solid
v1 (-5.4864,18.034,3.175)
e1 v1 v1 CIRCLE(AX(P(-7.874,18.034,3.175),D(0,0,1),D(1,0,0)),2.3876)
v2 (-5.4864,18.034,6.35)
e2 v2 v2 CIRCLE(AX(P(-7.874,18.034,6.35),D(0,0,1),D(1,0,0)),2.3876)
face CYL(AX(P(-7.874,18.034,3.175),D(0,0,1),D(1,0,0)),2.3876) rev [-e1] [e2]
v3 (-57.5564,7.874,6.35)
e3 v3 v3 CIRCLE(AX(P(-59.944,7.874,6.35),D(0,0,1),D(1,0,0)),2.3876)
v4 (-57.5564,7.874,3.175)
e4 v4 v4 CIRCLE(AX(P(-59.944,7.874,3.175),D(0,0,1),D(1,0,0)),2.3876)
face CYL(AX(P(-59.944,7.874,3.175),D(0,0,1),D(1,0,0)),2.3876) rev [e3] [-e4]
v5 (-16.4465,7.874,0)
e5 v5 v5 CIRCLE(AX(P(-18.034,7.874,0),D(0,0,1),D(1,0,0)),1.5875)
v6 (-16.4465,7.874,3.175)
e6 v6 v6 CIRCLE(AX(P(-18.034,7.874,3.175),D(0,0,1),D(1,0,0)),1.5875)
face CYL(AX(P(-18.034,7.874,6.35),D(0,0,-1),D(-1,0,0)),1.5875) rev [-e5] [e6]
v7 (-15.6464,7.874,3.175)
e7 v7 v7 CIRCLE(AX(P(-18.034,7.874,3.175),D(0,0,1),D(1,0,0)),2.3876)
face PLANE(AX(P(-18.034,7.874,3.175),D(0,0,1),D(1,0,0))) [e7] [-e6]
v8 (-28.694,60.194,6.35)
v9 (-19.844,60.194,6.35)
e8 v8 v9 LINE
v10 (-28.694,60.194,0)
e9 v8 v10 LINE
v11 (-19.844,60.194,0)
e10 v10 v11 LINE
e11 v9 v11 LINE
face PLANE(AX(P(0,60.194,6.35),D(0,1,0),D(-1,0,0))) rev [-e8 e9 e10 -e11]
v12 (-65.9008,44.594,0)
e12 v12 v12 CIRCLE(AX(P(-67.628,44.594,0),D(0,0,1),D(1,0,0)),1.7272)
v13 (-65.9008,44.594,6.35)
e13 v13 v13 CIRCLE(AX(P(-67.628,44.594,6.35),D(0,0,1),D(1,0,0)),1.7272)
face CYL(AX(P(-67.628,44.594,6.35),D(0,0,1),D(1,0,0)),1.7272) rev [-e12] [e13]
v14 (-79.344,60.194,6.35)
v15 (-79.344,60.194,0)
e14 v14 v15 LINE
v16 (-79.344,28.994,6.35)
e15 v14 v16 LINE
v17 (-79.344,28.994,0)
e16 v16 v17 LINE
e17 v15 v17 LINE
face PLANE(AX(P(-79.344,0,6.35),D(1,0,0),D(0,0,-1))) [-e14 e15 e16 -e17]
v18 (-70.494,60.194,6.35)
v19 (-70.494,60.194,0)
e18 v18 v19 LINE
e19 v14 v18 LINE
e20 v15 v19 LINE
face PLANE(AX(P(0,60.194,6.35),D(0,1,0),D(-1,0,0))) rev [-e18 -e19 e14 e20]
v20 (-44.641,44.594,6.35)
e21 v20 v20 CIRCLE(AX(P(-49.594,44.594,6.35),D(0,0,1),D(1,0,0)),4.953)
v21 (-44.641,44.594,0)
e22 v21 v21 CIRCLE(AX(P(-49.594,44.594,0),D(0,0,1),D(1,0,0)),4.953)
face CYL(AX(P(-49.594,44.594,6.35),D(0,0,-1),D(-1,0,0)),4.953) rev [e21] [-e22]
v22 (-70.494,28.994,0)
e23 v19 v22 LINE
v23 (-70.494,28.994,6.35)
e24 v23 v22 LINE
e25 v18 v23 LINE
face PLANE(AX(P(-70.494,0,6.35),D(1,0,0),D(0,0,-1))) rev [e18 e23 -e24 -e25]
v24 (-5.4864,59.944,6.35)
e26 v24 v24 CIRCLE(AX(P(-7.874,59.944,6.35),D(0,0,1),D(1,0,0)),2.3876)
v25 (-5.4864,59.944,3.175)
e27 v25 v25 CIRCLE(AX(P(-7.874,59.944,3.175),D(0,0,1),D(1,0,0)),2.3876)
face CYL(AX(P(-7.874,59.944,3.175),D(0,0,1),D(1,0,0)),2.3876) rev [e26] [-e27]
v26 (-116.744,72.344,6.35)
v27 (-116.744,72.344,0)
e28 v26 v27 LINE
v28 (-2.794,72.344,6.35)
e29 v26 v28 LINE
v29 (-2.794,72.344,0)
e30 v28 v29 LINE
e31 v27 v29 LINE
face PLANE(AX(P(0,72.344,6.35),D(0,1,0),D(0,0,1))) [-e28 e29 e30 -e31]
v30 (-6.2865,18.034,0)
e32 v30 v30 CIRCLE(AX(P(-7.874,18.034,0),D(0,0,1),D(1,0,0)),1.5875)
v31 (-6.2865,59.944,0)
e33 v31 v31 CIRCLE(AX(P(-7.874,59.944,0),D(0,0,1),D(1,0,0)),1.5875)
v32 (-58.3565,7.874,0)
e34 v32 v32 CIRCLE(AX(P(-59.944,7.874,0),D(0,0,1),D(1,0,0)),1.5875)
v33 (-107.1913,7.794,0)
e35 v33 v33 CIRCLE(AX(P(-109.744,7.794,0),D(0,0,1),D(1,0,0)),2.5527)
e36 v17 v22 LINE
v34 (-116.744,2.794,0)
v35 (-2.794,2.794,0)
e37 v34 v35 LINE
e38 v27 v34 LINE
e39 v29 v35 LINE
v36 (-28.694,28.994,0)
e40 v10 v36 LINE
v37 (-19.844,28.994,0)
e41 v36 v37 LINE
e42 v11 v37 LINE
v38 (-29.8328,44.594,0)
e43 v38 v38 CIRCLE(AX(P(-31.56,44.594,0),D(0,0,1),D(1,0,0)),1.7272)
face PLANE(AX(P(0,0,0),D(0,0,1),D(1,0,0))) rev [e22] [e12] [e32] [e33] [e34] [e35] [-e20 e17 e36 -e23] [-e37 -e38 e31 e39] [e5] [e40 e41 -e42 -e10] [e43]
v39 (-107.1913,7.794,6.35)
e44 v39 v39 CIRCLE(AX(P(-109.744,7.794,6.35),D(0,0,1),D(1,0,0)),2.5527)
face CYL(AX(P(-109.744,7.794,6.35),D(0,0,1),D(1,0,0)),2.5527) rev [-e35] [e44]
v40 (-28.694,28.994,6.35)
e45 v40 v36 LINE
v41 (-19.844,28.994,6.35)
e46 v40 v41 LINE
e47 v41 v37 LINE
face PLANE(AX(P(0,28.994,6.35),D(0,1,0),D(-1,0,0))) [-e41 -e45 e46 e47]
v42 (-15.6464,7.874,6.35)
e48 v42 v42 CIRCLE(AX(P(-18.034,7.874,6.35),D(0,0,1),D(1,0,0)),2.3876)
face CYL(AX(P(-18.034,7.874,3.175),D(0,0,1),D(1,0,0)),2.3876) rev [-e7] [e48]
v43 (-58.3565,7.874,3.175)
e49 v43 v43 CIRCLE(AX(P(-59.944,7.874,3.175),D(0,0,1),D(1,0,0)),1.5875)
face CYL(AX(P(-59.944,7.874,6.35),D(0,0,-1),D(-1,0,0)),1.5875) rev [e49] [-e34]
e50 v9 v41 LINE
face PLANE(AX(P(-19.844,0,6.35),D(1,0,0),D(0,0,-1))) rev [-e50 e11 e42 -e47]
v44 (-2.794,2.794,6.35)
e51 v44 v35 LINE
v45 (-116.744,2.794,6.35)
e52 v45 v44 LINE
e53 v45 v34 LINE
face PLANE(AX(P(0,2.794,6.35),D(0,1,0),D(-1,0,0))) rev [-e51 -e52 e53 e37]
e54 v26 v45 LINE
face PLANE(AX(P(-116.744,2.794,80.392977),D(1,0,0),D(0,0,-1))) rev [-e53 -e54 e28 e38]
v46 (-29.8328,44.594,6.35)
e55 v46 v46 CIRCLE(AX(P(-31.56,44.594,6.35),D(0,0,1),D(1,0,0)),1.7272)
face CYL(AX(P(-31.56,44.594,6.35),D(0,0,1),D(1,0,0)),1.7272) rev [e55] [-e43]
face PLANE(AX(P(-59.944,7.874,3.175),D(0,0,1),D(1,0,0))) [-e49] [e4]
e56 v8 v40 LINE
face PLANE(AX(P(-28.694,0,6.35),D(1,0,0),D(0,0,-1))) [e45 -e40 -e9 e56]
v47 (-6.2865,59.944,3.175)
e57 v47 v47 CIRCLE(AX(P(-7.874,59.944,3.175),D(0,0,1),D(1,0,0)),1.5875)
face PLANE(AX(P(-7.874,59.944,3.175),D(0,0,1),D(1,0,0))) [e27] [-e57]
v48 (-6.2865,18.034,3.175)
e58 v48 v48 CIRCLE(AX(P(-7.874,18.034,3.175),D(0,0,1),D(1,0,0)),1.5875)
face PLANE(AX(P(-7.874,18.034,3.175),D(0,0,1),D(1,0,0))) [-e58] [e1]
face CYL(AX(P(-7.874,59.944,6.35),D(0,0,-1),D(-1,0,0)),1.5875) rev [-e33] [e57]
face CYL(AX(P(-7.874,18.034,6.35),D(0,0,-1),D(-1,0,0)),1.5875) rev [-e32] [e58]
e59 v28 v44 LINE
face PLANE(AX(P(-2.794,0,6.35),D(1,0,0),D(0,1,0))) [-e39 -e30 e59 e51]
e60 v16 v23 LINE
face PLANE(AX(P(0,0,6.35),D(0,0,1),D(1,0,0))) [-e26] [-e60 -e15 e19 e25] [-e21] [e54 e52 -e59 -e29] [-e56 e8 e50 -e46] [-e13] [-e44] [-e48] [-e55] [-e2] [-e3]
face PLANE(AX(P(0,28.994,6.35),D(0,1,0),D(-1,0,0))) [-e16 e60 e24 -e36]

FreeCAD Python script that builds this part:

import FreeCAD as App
import Part
import Sketcher
from FreeCAD import Vector
Q = App.Units.Quantity


def add_polygon(sketch, points):
    """Adds a closed chain of lines whose ends are joined by coincident constraints."""
    first, n = sketch.GeometryCount, len(points)
    for a, b in zip(points, points[1:] + points[:1]):
        sketch.addGeometry(Part.LineSegment(App.Vector(*a, 0), App.Vector(*b, 0)), False)
    for i in range(n):
        sketch.addConstraint(Sketcher.Constraint("Coincident", first + i, 2, first + (i + 1) % n, 1))

doc = App.newDocument("Part")
body = doc.addObject("PartDesign::Body", "Body")

# Sketch on XY plane
sketch1 = body.newObject("Sketcher::SketchObject", "Sketch")
sketch1.AttachmentSupport = (doc.getObject("XY_Plane"), [""])
sketch1.MapMode = "FlatFace"
add_polygon(sketch1, [(-91.3, 72.3), (-91.3, 2.8), (-2.8, 2.8), (-2.8, 72.3)])  # lines 0-3
add_polygon(sketch1, [(-70.5, 29), (-79.3, 29), (-79.3, 60.2), (-70.5, 60.2)])  # lines 4-7
sketch1.addGeometry(Part.Circle(Vector(-49.6, 44.6, 0), Vector(0, 0, 1), 5), False)  # 8
add_polygon(sketch1, [(-19.8, 29), (-28.7, 29), (-28.7, 60.2), (-19.8, 60.2)])  # lines 9-12
sketch1.addGeometry(Part.Circle(Vector(-59.9, 7.9, 0), Vector(0, 0, 1), 1.6), False)  # 13
sketch1.addGeometry(Part.Circle(Vector(-18, 7.9, 0), Vector(0, 0, 1), 1.6), False)  # 14
sketch1.addGeometry(Part.Circle(Vector(-7.9, 18, 0), Vector(0, 0, 1), 1.6), False)  # 15
sketch1.addGeometry(Part.Circle(Vector(-7.9, 59.9, 0), Vector(0, 0, 1), 1.6), False)  # 16
sketch1.addConstraint(Sketcher.Constraint("Vertical", 0))
sketch1.addConstraint(Sketcher.Constraint("Horizontal", 1))
sketch1.addConstraint(Sketcher.Constraint("Vertical", 2))
sketch1.addConstraint(Sketcher.Constraint("Horizontal", 3))
sketch1.addConstraint(Sketcher.Constraint("Horizontal", 4))
sketch1.addConstraint(Sketcher.Constraint("Vertical", 5))
sketch1.addConstraint(Sketcher.Constraint("Horizontal", 6))
sketch1.addConstraint(Sketcher.Constraint("Vertical", 7))
sketch1.addConstraint(Sketcher.Constraint("Horizontal", 9))
sketch1.addConstraint(Sketcher.Constraint("Vertical", 10))
sketch1.addConstraint(Sketcher.Constraint("Horizontal", 11))
sketch1.addConstraint(Sketcher.Constraint("Vertical", 12))
sketch1.addConstraint(Sketcher.Constraint("Equal", 13, 14))
sketch1.addConstraint(Sketcher.Constraint("Equal", 14, 15))
sketch1.addConstraint(Sketcher.Constraint("Equal", 15, 16))
sketch1.addConstraint(Sketcher.Constraint("Horizontal", 13, 3, 14, 3))
sketch1.addConstraint(Sketcher.Constraint("Horizontal", 7, 2, 9, 2))
sketch1.addConstraint(Sketcher.Constraint("Horizontal", 6, 2, 10, 2))
sketch1.addConstraint(Sketcher.Constraint("Vertical", 15, 3, 16, 3))
sketch1.addConstraint(Sketcher.Constraint("Equal", 6, 9))
sketch1.addConstraint(Sketcher.Constraint("Diameter", 8, Q("0.39 in")))
sketch1.addConstraint(Sketcher.Constraint("Diameter", 13, Q("0.125 in")))
sketch1.addConstraint(Sketcher.Constraint("DistanceX", 14, 3, 15, 3, Q("0.4 in")))
sketch1.addConstraint(Sketcher.Constraint("DistanceY", 14, 3, 15, 3, Q("0.4 in")))
sketch1.addConstraint(Sketcher.Constraint("DistanceY", 0, 2, 13, 3, Q("0.2 in")))
sketch1.addConstraint(Sketcher.Constraint("DistanceX", 14, 3, 1, 2, Q("0.6 in")))
sketch1.addConstraint(Sketcher.Constraint("DistanceX", 13, 3, -1, 1, Q("2.36 in")))
sketch1.addConstraint(Sketcher.Constraint("DistanceY", -1, 1, 13, 3, Q("0.31 in")))
sketch1.addConstraint(Sketcher.Constraint("DistanceX", 14, 3, -1, 1, Q("0.71 in")))
sketch1.addConstraint(Sketcher.Constraint("DistanceY", -1, 1, 16, 3, Q("2.36 in")))
sketch1.addConstraint(Sketcher.Constraint("DistanceX", 1, 1, 1, 2, 88.55))
sketch1.addConstraint(Sketcher.Constraint("DistanceX", 4, 2, 4, 1, 8.85))
sketch1.addConstraint(Sketcher.Constraint("DistanceY", 0, 2, 0, 1, 69.55))
sketch1.addConstraint(Sketcher.Constraint("DistanceY", 5, 1, 5, 2, 31.2))
sketch1.addConstraint(Sketcher.Constraint("DistanceX", 8, 3, -1, 1, 49.594))
sketch1.addConstraint(Sketcher.Constraint("DistanceY", -1, 1, 8, 3, 44.594))
sketch1.addConstraint(Sketcher.Constraint("DistanceX", 4, 2, -1, 1, 79.344))
sketch1.addConstraint(Sketcher.Constraint("DistanceY", -1, 1, 4, 2, 28.994))
sketch1.addConstraint(Sketcher.Constraint("DistanceX", 9, 2, -1, 1, 28.694))
pad1 = body.newObject("PartDesign::Pad", "Pad")
pad1.Profile = sketch1
pad1.Length = Q("0.25 in")

# Sketch on XY plane
sketch2 = body.newObject("Sketcher::SketchObject", "Sketch001")
sketch2.AttachmentSupport = (doc.getObject("XY_Plane"), [""])
sketch2.MapMode = "FlatFace"
sketch2.AttachmentOffset = App.Placement(Vector(0, 0, 0.25 * 25.4), App.Rotation())
sketch2.addGeometry(Part.Circle(Vector(-67.6, 44.6, 0), Vector(0, 0, 1), 1.7), False)
sketch2.addGeometry(Part.Circle(Vector(-31.6, 44.6, 0), Vector(0, 0, 1), 1.7), False)
sketch2.addConstraint(Sketcher.Constraint("Equal", 0, 1))
sketch2.addConstraint(Sketcher.Constraint("Horizontal", 0, 3, 1, 3))
sketch2.addConstraint(Sketcher.Constraint("Diameter", 0, Q("0.136 in")))
sketch2.addConstraint(Sketcher.Constraint("DistanceX", 0, 3, 1, 3, Q("1.42 in")))
sketch2.addConstraint(Sketcher.Constraint("DistanceX", 0, 3, -1, 1, 67.628))
sketch2.addConstraint(Sketcher.Constraint("DistanceY", -1, 1, 0, 3, 44.594))
doc.recompute()
hole = body.newObject("PartDesign::Hole", "Hole")
hole.Profile = sketch2
hole.ThreadType = "None"
hole.Diameter = Q("0.136 in")
hole.DepthType = "ThroughAll"

# Sketch on XY plane
sketch3 = body.newObject("Sketcher::SketchObject", "Sketch002")
sketch3.AttachmentSupport = (doc.getObject("XY_Plane"), [""])
sketch3.MapMode = "FlatFace"
sketch3.AttachmentOffset = App.Placement(Vector(0, 0, 0.125 * 25.4), App.Rotation())
sketch3.addGeometry(Part.Circle(Vector(-18, 7.9, 0), Vector(0, 0, 1), 2.4), False)
sketch3.addGeometry(Part.Circle(Vector(-18, 7.9, 0), Vector(0, 0, 1), 1.6), False)
sketch3.addGeometry(Part.Circle(Vector(-7.9, 18, 0), Vector(0, 0, 1), 2.4), False)
sketch3.addGeometry(Part.Circle(Vector(-7.9, 18, 0), Vector(0, 0, 1), 1.6), False)
sketch3.addGeometry(Part.Circle(Vector(-59.9, 7.9, 0), Vector(0, 0, 1), 2.4), False)
sketch3.addGeometry(Part.Circle(Vector(-59.9, 7.9, 0), Vector(0, 0, 1), 1.6), False)
sketch3.addGeometry(Part.Circle(Vector(-7.9, 59.9, 0), Vector(0, 0, 1), 2.4), False)
sketch3.addGeometry(Part.Circle(Vector(-7.9, 59.9, 0), Vector(0, 0, 1), 1.6), False)
sketch3.addConstraint(Sketcher.Constraint("Coincident", 1, 3, 0, 3))
sketch3.addConstraint(Sketcher.Constraint("Coincident", 3, 3, 2, 3))
sketch3.addConstraint(Sketcher.Constraint("Coincident", 5, 3, 4, 3))
sketch3.addConstraint(Sketcher.Constraint("Coincident", 7, 3, 6, 3))
sketch3.addConstraint(Sketcher.Constraint("Equal", 0, 2))
sketch3.addConstraint(Sketcher.Constraint("Equal", 1, 3))
sketch3.addConstraint(Sketcher.Constraint("Equal", 2, 4))
sketch3.addConstraint(Sketcher.Constraint("Equal", 3, 5))
sketch3.addConstraint(Sketcher.Constraint("Equal", 4, 6))
sketch3.addConstraint(Sketcher.Constraint("Equal", 5, 7))
sketch3.addConstraint(Sketcher.Constraint("Horizontal", 1, 3, 4, 3))
sketch3.addConstraint(Sketcher.Constraint("Vertical", 3, 3, 6, 3))
sketch3.addConstraint(Sketcher.Constraint("Diameter", 0, Q("0.188 in")))
sketch3.addConstraint(Sketcher.Constraint("Diameter", 1, Q("0.125 in")))
sketch3.addConstraint(Sketcher.Constraint("DistanceX", 0, 3, 2, 3, Q("0.4 in")))
sketch3.addConstraint(Sketcher.Constraint("DistanceY", 0, 3, 2, 3, Q("0.4 in")))
sketch3.addConstraint(Sketcher.Constraint("DistanceX", 0, 3, -1, 1, Q("0.71 in")))
sketch3.addConstraint(Sketcher.Constraint("DistanceY", -1, 1, 0, 3, Q("0.31 in")))
sketch3.addConstraint(Sketcher.Constraint("DistanceX", 4, 3, -1, 1, Q("2.36 in")))
sketch3.addConstraint(Sketcher.Constraint("DistanceY", -1, 1, 6, 3, Q("2.36 in")))
pocket1 = body.newObject("PartDesign::Pocket", "Pocket")
pocket1.Profile = sketch3
pocket1.Length = Q("0.125 in")
pocket1.Reversed = True

# Sketch on XY plane
sketch4 = body.newObject("Sketcher::SketchObject", "Sketch003")
sketch4.AttachmentSupport = (doc.getObject("XY_Plane"), [""])
sketch4.MapMode = "FlatFace"
add_polygon(sketch4, [(-116.7, 72.3), (-116.7, 2.8), (-91.3, 2.8), (-91.3, 72.3)])  # lines 0-3
sketch4.addGeometry(Part.Circle(Vector(-109.7, 7.8, 0), Vector(0, 0, 1), 1), False)  # 4
sketch4.addConstraint(Sketcher.Constraint("Vertical", 0))
sketch4.addConstraint(Sketcher.Constraint("Horizontal", 1))
sketch4.addConstraint(Sketcher.Constraint("Vertical", 2))
sketch4.addConstraint(Sketcher.Constraint("Horizontal", 3))
sketch4.addConstraint(Sketcher.Constraint("DistanceX", 1, 1, 1, 2, Q("1 in")))
sketch4.addConstraint(Sketcher.Constraint("Diameter", 4, 2.0))
sketch4.addConstraint(Sketcher.Constraint("DistanceY", -1, 1, 0, 2, Q("0.11 in")))
sketch4.addConstraint(Sketcher.Constraint("DistanceY", 0, 2, 0, 1, 69.55))
sketch4.addConstraint(Sketcher.Constraint("DistanceX", 4, 3, -1, 1, 109.744))
sketch4.addConstraint(Sketcher.Constraint("DistanceY", -1, 1, 4, 3, 7.794))
sketch4.addConstraint(Sketcher.Constraint("DistanceX", 0, 2, -1, 1, 116.744))
pad2 = body.newObject("PartDesign::Pad", "Pad001")
pad2.Profile = sketch4
pad2.Length = Q("0.25 in")

# Sketch on XY plane
sketch5 = body.newObject("Sketcher::SketchObject", "Sketch004")
sketch5.AttachmentSupport = (doc.getObject("XY_Plane"), [""])
sketch5.MapMode = "FlatFace"
sketch5.AttachmentOffset = App.Placement(Vector(0, 0, 0.25 * 25.4), App.Rotation())
sketch5.addGeometry(Part.Circle(Vector(-109.7, 7.8, 0), Vector(0, 0, 1), 2.6), False)
sketch5.addConstraint(Sketcher.Constraint("Diameter", 0, Q("0.201 in")))
sketch5.addConstraint(Sketcher.Constraint("DistanceX", 0, 3, -1, 1, 109.744))
sketch5.addConstraint(Sketcher.Constraint("DistanceY", -1, 1, 0, 3, 7.794))
doc.recompute()
hole2 = body.newObject("PartDesign::Hole", "Hole001")
hole2.Profile = sketch5
hole2.ThreadType = "None"
hole2.Diameter = Q("0.201 in")
hole2.DepthType = "ThroughAll"

doc.recompute()
